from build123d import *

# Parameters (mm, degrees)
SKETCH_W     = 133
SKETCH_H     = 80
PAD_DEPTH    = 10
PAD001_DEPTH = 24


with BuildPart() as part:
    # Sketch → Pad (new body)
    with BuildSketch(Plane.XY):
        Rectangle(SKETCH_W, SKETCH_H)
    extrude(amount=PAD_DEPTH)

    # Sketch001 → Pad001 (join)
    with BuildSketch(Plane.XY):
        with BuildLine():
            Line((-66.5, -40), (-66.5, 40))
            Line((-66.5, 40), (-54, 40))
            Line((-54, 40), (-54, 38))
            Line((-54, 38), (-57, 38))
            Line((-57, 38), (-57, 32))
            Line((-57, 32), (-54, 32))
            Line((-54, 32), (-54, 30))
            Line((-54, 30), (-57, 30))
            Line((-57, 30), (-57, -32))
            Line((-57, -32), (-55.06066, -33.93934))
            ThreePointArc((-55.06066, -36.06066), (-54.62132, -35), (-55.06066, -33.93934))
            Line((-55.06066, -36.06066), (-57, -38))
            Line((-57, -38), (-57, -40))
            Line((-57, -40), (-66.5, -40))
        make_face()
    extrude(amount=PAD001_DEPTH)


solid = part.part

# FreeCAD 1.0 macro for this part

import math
import FreeCAD as App
import Part
import Sketcher
Q = App.Units.Quantity

doc = App.newDocument("Part")
body = doc.addObject("PartDesign::Body", "Body")

sketch1 = doc.addObject("Sketcher::SketchObject", "Sketch")
body.addObject(sketch1)
sketch1.AttachmentSupport = (doc.XY_Plane, [""])
sketch1.MapMode = "FlatFace"
sketch1.addGeometry(Part.LineSegment(App.Vector(-66, 40, 0), App.Vector(-66, -40, 0)), False)
sketch1.addGeometry(Part.LineSegment(App.Vector(-66, -40, 0), App.Vector(66, -40, 0)), False)
sketch1.addGeometry(Part.LineSegment(App.Vector(66, -40, 0), App.Vector(66, 40, 0)), False)
sketch1.addGeometry(Part.LineSegment(App.Vector(66, 40, 0), App.Vector(-66, 40, 0)), False)
sketch1.addConstraint(Sketcher.Constraint("Coincident", 0, 2, 1, 1))
sketch1.addConstraint(Sketcher.Constraint("Coincident", 1, 2, 2, 1))
sketch1.addConstraint(Sketcher.Constraint("Coincident", 2, 2, 3, 1))
sketch1.addConstraint(Sketcher.Constraint("Coincident", 3, 2, 0, 1))
sketch1.addConstraint(Sketcher.Constraint("Vertical", 0))
sketch1.addConstraint(Sketcher.Constraint("Horizontal", 1))
sketch1.addConstraint(Sketcher.Constraint("Vertical", 2))
sketch1.addConstraint(Sketcher.Constraint("Horizontal", 3))
sketch1.addConstraint(Sketcher.Constraint("Symmetric", 0, 2, 2, 2, -1, 1))
sketch1.addConstraint(Sketcher.Constraint("DistanceX", 1, 1, 1, 2, Q("133 mm")))
sketch1.addConstraint(Sketcher.Constraint("DistanceY", 0, 2, 0, 1, Q("80 mm")))
pad1 = doc.addObject("PartDesign::Pad", "Pad")
body.addObject(pad1)
pad1.Profile = sketch1
pad1.Length = 10

sketch2 = doc.addObject("Sketcher::SketchObject", "Sketch001")
body.addObject(sketch2)
sketch2.AttachmentSupport = (doc.XY_Plane, [""])
sketch2.MapMode = "FlatFace"
sketch2.addGeometry(Part.LineSegment(App.Vector(-66.5, 40, 0), App.Vector(-66.5, -40, 0)), False)
sketch2.addGeometry(Part.LineSegment(App.Vector(-66.5, -40, 0), App.Vector(-57, -40, 0)), False)
sketch2.addGeometry(Part.LineSegment(App.Vector(-57, -40, 0), App.Vector(-57, -38, 0)), False)
sketch2.addGeometry(Part.LineSegment(App.Vector(-57, -38, 0), App.Vector(-55.1, -36.1, 0)), False)
sketch2.addGeometry(Part.ArcOfCircle(Part.Circle(App.Vector(-56.1, -35, 0), App.Vector(0, 0, 1), 1.5), math.radians(-45), math.radians(45)), False)
sketch2.addGeometry(Part.LineSegment(App.Vector(-55.1, -33.9, 0), App.Vector(-57, -32, 0)), False)
sketch2.addGeometry(Part.LineSegment(App.Vector(-57, -32, 0), App.Vector(-57, 30, 0)), False)
sketch2.addGeometry(Part.LineSegment(App.Vector(-57, 30, 0), App.Vector(-54, 30, 0)), False)
sketch2.addGeometry(Part.LineSegment(App.Vector(-54, 30, 0), App.Vector(-54, 32, 0)), False)
sketch2.addGeometry(Part.LineSegment(App.Vector(-54, 32, 0), App.Vector(-57, 32, 0)), False)
sketch2.addGeometry(Part.LineSegment(App.Vector(-57, 32, 0), App.Vector(-57, 38, 0)), False)
sketch2.addGeometry(Part.LineSegment(App.Vector(-57, 38, 0), App.Vector(-54, 38, 0)), False)
sketch2.addGeometry(Part.LineSegment(App.Vector(-54, 38, 0), App.Vector(-54, 40, 0)), False)
sketch2.addGeometry(Part.LineSegment(App.Vector(-54, 40, 0), App.Vector(-66.5, 40, 0)), False)
sketch2.addConstraint(Sketcher.Constraint("Coincident", 0, 2, 1, 1))
sketch2.addConstraint(Sketcher.Constraint("Coincident", 1, 2, 2, 1))
sketch2.addConstraint(Sketcher.Constraint("Coincident", 2, 2, 3, 1))
sketch2.addConstraint(Sketcher.Constraint("Tangent", 3, 2, 4, 1))
sketch2.addConstraint(Sketcher.Constraint("Tangent", 4, 2, 5, 1))
sketch2.addConstraint(Sketcher.Constraint("Coincident", 5, 2, 6, 1))
sketch2.addConstraint(Sketcher.Constraint("Coincident", 6, 2, 7, 1))
sketch2.addConstraint(Sketcher.Constraint("Coincident", 7, 2, 8, 1))
sketch2.addConstraint(Sketcher.Constraint("Coincident", 8, 2, 9, 1))
sketch2.addConstraint(Sketcher.Constraint("Coincident", 9, 2, 10, 1))
sketch2.addConstraint(Sketcher.Constraint("Coincident", 10, 2, 11, 1))
sketch2.addConstraint(Sketcher.Constraint("Coincident", 11, 2, 12, 1))
sketch2.addConstraint(Sketcher.Constraint("Coincident", 12, 2, 13, 1))
sketch2.addConstraint(Sketcher.Constraint("Coincident", 13, 2, 0, 1))
sketch2.addConstraint(Sketcher.Constraint("Vertical", 0))
sketch2.addConstraint(Sketcher.Constraint("Horizontal", 1))
sketch2.addConstraint(Sketcher.Constraint("Vertical", 2))
sketch2.addConstraint(Sketcher.Constraint("Vertical", 6))
sketch2.addConstraint(Sketcher.Constraint("Horizontal", 7))
sketch2.addConstraint(Sketcher.Constraint("Vertical", 8))
sketch2.addConstraint(Sketcher.Constraint("Horizontal", 9))
sketch2.addConstraint(Sketcher.Constraint("Vertical", 10))
sketch2.addConstraint(Sketcher.Constraint("Horizontal", 11))
sketch2.addConstraint(Sketcher.Constraint("Vertical", 12))
sketch2.addConstraint(Sketcher.Constraint("Horizontal", 13))
sketch2.addConstraint(Sketcher.Constraint("Symmetric", 5, 2, 9, 2, -1))
sketch2.addConstraint(Sketcher.Constraint("Symmetric", 2, 2, 10, 2, -1))
sketch2.addConstraint(Sketcher.Constraint("Perpendicular", 3, 5))
sketch2.addConstraint(Sketcher.Constraint("Vertical", 3, 2, 4, 2))
sketch2.addConstraint(Sketcher.Constraint("Vertical", 8, 2, 11, 2))
sketch2.addConstraint(Sketcher.Constraint("Equal", 2, 8))
sketch2.addConstraint(Sketcher.Constraint("Equal", 8, 12))
sketch2.addConstraint(Sketcher.Constraint("Radius", 4, Q("1.499999 mm")))
sketch2.addConstraint(Sketcher.Constraint("DistanceX", 7, 1, 7, 2, Q("3 mm")))
sketch2.addConstraint(Sketcher.Constraint("DistanceY", 0, 2, 0, 1, Q("80 mm")))
sketch2.addConstraint(Sketcher.Constraint("DistanceY", 2, 1, 2, 2, Q("2 mm")))
sketch2.addConstraint(Sketcher.Constraint("DistanceY", 6, 1, 6, 2, Q("62 mm")))
sketch2.addConstraint(Sketcher.Constraint("DistanceX", 1, 1, 1, 2, Q("9.5 mm")))
sketch2.addConstraint(Sketcher.Constraint("DistanceX", 1, 2, -1, 1, Q("57 mm")))
pad2 = doc.addObject("PartDesign::Pad", "Pad001")
body.addObject(pad2)
pad2.Profile = sketch2
pad2.Length = 24

doc.recompute()
